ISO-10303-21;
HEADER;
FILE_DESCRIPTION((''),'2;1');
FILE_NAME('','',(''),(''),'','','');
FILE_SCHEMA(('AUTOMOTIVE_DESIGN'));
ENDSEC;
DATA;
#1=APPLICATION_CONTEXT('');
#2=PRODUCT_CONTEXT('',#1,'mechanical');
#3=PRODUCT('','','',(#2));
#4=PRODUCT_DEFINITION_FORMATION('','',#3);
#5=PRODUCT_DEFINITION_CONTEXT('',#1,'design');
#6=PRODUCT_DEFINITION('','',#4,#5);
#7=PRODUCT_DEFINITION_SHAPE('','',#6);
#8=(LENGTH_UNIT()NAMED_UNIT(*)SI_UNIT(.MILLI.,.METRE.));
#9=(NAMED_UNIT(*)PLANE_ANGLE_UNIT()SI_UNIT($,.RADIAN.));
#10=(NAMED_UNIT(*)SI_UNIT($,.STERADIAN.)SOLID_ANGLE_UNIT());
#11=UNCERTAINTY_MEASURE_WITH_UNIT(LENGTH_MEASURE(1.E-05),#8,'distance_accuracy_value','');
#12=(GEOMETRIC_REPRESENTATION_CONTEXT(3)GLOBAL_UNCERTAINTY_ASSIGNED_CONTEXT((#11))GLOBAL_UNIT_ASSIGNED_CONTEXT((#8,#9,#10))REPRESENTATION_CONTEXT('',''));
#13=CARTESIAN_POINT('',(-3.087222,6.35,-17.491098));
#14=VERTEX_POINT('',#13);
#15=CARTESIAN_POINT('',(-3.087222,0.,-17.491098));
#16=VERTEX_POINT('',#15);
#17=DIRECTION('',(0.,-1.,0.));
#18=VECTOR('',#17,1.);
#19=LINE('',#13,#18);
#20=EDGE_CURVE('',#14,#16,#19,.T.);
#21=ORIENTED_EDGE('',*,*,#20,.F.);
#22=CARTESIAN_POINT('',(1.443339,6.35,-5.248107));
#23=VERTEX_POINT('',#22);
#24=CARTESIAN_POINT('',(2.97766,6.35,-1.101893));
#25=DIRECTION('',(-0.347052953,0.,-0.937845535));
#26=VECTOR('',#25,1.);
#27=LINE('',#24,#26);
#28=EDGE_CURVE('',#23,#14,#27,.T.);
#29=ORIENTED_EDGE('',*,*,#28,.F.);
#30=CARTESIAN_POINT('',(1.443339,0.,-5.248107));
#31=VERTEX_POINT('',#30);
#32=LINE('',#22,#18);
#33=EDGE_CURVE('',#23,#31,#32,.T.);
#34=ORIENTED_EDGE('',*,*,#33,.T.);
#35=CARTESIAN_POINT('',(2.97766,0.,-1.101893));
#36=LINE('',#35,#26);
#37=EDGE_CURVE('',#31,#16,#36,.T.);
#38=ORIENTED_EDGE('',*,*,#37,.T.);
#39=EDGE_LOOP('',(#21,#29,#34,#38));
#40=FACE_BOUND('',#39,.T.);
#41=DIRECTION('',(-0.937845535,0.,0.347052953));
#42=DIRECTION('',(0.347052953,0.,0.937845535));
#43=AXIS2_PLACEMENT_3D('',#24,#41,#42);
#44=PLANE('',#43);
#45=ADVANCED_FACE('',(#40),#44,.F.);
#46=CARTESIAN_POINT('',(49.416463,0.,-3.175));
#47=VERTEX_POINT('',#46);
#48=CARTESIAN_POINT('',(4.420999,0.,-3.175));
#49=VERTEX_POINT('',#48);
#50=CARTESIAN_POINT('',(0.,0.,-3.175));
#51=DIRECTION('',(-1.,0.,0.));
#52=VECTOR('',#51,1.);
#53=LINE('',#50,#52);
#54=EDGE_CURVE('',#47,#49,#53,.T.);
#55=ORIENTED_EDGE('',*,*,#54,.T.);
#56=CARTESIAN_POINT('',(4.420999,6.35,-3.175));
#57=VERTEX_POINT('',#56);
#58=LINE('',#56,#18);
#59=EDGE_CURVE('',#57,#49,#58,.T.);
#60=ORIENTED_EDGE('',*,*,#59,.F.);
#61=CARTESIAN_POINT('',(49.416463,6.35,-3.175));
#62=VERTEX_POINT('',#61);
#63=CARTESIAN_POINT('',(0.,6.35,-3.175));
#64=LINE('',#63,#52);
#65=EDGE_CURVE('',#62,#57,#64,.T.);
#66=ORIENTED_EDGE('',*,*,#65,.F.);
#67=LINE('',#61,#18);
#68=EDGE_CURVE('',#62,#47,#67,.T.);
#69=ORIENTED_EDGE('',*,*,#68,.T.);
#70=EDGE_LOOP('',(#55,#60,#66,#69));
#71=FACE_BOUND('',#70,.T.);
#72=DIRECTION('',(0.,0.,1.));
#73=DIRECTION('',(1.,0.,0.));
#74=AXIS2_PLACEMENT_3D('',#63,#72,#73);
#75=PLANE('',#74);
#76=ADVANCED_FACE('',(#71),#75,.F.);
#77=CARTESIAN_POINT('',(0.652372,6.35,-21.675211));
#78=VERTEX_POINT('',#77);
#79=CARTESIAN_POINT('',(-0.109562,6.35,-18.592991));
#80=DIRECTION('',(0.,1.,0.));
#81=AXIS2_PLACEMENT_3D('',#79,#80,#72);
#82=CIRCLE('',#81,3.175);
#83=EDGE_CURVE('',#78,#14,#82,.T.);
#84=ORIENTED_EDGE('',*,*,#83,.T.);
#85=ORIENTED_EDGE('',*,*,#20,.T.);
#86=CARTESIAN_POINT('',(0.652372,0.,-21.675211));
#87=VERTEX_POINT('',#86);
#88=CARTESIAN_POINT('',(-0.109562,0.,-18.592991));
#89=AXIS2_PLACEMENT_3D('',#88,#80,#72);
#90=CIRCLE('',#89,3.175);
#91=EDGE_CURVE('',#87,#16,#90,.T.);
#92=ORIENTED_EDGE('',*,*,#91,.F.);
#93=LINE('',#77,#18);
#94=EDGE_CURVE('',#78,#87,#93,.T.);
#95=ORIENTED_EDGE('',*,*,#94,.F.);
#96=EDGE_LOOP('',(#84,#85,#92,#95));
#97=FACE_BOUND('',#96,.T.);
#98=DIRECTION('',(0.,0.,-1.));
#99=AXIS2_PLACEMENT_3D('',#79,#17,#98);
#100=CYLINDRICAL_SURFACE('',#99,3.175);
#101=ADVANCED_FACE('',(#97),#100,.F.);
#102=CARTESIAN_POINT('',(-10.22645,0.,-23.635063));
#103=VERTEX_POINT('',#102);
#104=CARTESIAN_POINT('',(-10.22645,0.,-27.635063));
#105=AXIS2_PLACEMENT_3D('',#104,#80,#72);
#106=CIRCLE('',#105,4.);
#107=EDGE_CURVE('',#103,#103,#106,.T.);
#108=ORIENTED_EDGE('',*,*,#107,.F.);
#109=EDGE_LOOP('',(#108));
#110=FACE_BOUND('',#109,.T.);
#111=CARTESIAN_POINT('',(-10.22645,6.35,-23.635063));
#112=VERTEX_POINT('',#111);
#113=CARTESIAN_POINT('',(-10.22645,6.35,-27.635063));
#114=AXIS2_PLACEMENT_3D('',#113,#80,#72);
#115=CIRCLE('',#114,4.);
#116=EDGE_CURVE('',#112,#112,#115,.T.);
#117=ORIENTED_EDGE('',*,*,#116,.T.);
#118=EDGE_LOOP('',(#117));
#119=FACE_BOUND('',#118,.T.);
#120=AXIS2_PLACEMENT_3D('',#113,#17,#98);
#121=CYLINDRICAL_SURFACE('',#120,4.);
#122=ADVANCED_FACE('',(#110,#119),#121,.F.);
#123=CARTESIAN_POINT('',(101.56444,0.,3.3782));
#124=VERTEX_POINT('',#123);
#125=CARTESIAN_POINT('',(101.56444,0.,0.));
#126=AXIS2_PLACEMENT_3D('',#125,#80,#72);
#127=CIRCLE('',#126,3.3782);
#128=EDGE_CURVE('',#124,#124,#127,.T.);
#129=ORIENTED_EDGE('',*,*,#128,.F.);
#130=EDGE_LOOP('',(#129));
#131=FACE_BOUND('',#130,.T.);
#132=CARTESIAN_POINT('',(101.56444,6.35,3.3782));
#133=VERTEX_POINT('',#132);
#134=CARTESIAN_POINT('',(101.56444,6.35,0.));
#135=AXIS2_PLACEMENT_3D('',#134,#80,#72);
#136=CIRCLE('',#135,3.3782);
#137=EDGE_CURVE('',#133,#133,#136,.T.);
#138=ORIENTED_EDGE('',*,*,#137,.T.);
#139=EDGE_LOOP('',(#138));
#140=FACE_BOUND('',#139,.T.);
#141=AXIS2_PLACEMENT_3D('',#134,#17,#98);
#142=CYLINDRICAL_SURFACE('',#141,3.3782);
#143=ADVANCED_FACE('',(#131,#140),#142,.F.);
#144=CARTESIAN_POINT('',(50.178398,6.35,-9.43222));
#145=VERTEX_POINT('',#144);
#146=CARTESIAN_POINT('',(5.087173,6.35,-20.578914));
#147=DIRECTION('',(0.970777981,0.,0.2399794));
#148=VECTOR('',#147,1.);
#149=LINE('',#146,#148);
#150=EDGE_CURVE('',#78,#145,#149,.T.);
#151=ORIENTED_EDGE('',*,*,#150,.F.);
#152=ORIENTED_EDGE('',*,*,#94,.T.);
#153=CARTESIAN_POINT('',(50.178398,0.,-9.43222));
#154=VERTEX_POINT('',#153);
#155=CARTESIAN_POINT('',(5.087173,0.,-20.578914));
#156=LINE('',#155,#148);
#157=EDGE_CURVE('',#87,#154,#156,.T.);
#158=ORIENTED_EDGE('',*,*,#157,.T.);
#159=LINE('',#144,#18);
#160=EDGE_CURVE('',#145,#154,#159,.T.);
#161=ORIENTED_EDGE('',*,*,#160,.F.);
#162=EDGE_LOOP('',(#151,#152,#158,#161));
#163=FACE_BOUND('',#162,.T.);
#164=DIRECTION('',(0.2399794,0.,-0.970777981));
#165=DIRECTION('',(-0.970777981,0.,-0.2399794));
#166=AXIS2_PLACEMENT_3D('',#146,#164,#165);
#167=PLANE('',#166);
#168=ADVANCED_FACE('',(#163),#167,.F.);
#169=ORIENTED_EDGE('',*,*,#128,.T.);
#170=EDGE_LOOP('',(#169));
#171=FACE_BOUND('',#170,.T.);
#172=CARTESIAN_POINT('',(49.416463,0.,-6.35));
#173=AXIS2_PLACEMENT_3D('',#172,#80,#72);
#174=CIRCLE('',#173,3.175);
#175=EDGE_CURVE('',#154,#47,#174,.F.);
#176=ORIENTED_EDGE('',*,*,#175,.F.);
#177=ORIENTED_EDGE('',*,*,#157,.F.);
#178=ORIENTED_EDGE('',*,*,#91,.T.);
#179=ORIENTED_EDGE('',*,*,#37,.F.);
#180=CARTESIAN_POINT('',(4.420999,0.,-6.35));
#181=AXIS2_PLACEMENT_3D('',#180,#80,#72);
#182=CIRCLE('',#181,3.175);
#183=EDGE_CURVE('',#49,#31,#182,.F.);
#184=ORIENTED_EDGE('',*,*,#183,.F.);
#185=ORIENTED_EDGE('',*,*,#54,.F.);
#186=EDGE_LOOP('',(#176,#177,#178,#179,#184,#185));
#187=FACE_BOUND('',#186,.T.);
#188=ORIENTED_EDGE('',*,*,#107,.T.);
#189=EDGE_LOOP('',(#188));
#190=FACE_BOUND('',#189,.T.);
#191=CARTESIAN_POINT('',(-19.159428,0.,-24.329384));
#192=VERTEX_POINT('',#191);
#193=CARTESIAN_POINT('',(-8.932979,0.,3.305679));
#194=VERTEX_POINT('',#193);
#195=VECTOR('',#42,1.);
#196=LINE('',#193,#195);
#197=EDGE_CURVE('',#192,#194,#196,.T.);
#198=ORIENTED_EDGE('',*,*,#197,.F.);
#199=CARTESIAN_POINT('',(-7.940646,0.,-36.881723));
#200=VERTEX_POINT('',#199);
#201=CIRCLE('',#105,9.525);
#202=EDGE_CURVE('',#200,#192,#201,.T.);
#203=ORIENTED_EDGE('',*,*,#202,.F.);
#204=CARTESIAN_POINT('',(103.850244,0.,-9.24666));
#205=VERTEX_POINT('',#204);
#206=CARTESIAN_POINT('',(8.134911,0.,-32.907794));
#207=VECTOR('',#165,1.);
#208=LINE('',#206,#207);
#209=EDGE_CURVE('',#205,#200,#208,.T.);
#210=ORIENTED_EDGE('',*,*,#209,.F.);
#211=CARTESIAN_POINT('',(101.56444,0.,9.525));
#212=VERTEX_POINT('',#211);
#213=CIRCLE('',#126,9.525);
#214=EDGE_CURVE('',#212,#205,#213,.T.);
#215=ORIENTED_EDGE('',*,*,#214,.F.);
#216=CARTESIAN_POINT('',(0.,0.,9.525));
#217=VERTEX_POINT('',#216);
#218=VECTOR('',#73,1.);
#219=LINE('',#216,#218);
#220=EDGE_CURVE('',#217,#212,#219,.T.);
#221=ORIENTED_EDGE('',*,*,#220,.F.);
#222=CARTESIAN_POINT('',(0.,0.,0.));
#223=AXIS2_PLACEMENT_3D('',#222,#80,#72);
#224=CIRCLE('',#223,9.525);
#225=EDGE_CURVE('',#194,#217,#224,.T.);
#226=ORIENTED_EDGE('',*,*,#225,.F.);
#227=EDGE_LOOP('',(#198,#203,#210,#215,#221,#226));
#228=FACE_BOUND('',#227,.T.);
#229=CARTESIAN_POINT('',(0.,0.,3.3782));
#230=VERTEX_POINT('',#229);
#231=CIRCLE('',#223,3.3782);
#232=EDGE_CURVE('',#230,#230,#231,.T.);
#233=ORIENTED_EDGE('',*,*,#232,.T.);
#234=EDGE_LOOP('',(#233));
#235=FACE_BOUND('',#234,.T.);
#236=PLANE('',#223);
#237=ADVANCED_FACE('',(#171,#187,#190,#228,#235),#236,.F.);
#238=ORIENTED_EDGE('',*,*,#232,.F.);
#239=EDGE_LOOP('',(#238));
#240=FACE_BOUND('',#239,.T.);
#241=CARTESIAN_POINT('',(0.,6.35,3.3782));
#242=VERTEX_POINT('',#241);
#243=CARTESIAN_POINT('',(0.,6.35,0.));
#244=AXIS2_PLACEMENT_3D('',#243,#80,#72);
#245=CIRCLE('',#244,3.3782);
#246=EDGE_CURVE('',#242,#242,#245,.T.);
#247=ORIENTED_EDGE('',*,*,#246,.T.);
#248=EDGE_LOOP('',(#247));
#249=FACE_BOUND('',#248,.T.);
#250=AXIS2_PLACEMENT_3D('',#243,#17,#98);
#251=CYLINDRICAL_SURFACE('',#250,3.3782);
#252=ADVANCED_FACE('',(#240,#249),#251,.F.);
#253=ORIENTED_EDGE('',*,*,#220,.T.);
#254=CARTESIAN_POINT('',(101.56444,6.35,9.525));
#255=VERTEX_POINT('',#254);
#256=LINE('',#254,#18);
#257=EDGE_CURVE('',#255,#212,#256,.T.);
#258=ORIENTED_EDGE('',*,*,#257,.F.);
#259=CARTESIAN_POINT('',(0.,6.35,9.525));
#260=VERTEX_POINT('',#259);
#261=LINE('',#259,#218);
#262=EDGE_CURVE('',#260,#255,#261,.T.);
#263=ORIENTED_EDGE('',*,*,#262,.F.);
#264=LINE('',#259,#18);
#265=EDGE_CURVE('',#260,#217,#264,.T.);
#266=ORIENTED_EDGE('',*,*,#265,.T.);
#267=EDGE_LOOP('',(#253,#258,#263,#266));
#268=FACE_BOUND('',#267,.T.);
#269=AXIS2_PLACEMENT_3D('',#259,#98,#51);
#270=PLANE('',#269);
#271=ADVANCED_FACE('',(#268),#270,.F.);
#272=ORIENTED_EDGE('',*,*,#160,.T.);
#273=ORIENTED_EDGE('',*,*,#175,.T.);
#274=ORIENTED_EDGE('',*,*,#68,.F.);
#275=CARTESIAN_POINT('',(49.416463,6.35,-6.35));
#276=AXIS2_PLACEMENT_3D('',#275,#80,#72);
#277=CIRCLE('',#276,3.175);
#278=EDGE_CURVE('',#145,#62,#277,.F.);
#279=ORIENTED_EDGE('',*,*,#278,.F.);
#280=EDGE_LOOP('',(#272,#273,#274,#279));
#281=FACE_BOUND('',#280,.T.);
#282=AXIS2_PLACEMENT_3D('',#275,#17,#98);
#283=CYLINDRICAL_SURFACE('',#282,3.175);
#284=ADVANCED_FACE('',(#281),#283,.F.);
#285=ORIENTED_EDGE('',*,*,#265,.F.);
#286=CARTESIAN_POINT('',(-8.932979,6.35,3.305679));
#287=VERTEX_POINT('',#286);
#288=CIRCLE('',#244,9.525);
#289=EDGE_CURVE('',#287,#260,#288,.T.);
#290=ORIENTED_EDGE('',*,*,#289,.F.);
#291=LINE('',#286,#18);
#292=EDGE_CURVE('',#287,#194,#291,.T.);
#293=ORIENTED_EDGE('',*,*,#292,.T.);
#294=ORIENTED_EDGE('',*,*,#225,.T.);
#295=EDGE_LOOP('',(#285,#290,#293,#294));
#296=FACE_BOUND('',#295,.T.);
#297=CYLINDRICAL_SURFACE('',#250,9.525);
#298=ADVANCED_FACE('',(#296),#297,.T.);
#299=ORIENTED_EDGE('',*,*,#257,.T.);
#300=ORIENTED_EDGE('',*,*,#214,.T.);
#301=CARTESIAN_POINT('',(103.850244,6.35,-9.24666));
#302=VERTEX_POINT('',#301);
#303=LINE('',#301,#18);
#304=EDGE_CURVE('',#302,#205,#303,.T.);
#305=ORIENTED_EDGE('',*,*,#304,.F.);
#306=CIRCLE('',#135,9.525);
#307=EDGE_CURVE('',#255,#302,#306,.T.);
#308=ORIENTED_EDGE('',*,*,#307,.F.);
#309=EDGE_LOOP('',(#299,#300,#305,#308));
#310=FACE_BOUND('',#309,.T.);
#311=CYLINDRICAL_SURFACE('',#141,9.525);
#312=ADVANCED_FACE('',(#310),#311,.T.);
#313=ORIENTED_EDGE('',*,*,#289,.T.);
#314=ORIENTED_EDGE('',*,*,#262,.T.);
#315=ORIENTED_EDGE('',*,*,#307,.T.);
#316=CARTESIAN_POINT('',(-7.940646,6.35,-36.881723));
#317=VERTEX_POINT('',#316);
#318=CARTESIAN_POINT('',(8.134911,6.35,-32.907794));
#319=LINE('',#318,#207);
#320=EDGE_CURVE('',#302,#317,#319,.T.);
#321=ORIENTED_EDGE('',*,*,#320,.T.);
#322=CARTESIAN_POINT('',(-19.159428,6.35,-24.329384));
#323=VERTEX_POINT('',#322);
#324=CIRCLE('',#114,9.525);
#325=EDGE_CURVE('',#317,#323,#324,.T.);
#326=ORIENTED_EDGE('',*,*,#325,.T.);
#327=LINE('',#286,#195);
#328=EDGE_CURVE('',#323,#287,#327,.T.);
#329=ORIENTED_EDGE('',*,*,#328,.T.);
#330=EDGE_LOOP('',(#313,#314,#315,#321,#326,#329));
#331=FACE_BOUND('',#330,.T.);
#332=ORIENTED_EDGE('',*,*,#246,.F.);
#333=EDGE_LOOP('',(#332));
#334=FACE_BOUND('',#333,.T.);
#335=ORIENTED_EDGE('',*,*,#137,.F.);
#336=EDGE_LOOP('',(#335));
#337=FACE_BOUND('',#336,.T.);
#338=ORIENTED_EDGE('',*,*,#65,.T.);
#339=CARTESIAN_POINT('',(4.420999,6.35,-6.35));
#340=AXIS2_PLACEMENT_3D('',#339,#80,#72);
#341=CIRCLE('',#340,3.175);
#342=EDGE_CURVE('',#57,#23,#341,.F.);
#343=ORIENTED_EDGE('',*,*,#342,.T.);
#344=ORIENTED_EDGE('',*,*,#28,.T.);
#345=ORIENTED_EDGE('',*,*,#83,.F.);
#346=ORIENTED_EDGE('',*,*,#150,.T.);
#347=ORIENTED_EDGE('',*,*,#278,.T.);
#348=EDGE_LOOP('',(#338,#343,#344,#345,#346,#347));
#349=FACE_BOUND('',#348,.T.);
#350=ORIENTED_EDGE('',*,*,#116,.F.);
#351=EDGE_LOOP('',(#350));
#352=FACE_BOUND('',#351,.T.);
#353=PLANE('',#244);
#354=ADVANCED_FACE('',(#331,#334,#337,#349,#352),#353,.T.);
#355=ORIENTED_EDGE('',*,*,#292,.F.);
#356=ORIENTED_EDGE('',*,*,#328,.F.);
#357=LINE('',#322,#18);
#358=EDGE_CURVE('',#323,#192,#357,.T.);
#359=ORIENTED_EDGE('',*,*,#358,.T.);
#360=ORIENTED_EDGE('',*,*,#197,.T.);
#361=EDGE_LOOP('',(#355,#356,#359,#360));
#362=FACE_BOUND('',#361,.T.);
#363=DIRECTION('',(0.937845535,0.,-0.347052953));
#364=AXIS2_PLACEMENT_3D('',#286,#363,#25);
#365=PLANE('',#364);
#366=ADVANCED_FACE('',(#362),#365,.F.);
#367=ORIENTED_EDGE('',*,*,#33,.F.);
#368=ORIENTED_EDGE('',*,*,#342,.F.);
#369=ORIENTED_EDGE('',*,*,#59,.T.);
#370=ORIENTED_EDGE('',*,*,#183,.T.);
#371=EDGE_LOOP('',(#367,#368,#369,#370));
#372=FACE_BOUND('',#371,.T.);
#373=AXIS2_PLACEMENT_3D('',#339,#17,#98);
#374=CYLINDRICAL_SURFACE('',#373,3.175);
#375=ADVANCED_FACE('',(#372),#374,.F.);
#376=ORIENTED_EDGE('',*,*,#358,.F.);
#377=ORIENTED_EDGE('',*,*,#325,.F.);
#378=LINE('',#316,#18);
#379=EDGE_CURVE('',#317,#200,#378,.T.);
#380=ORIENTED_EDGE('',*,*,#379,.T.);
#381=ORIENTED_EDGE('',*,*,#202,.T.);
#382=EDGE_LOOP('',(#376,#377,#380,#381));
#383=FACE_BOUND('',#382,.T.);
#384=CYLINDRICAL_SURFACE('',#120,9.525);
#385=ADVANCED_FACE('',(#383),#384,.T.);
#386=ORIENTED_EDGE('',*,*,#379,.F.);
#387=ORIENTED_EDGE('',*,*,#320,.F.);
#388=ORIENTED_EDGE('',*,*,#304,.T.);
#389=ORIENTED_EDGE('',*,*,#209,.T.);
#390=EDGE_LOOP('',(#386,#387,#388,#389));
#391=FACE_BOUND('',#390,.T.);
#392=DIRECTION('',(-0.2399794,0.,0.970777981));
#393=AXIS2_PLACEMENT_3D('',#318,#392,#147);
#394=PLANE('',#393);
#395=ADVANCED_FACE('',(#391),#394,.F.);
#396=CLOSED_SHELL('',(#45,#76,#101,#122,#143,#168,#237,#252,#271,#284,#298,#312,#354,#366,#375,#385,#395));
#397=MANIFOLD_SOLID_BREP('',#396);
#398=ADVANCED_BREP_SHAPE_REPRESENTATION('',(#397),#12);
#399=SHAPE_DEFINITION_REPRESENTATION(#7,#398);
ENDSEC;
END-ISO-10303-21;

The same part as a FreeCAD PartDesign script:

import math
import FreeCAD as App
import Part
import Sketcher

V = App.Vector
Q = App.Units.Quantity

doc = App.newDocument("Part")
body = doc.addObject("PartDesign::Body", "Body")

sketch1 = body.newObject("Sketcher::SketchObject", "Sketch")
sketch1.AttachmentSupport = (doc.getObject("XZ_Plane"), [""])
sketch1.MapMode = "FlatFace"
sketch1.addGeometry(Part.LineSegment(V(-19.159429, -24.329385, 0), V(-8.932979, 3.305679, 0)), False)
sketch1.addGeometry(Part.ArcOfCircle(Part.Circle(V(0, 0, 0), V(0, 0, 1), 9.525), math.radians(90), math.radians(159.692836)), False)
sketch1.addGeometry(Part.LineSegment(V(0, 9.525, 0), V(101.56444, 9.525, 0)), False)
sketch1.addGeometry(Part.ArcOfCircle(Part.Circle(V(101.56444, 0, 0), V(0, 0, 1), 9.525), math.radians(-76.114672), math.radians(90)), False)
sketch1.addGeometry(Part.LineSegment(V(103.850244, -9.24666, 0), V(-7.940645, -36.881723, 0)), False)
sketch1.addGeometry(Part.ArcOfCircle(Part.Circle(V(-10.22645, -27.635063, 0), V(0, 0, 1), 9.525), math.radians(159.692844), math.radians(283.885329)), False)
sketch1.addGeometry(Part.LineSegment(V(-0.138965, -9.523986, 0), V(-3.087222, -17.491098, 0)), False)
sketch1.addGeometry(Part.ArcOfCircle(Part.Circle(V(-0.109562, -18.592991, 0), V(0, 0, 1), 3.175), math.radians(159.692834), math.radians(283.885325)), False)
sketch1.addGeometry(Part.LineSegment(V(0.652372, -21.675211, 0), V(50.178398, -9.43222, 0)), False)
sketch1.addGeometry(Part.ArcOfCircle(Part.Circle(V(49.416463, -6.35, 0), V(0, 0, 1), 3.175), math.radians(-76.114675), math.radians(90)), False)
sketch1.addGeometry(Part.LineSegment(V(49.416463, -3.175, 0), V(4.420999, -3.175, 0)), False)
sketch1.addGeometry(Part.ArcOfCircle(Part.Circle(V(4.420999, -6.35, 0), V(0, 0, 1), 3.175), math.radians(90), math.radians(159.692834)), False)
sketch1.addGeometry(Part.LineSegment(V(1.443339, -5.248107, 0), V(-0.138965, -9.523986, 0)), False)
sketch1.addGeometry(Part.Circle(V(-10.22645, -27.635063, 0), V(0, 0, 1), 4), False)
sketch1.addGeometry(Part.Circle(V(0, 0, 0), V(0, 0, 1), 3.3782), False)
sketch1.addGeometry(Part.Circle(V(101.56444, 0, 0), V(0, 0, 1), 3.3782), False)
sketch1.addConstraint(Sketcher.Constraint("Tangent", 0, 2, 1, 2))
sketch1.addConstraint(Sketcher.Constraint("Tangent", 1, 1, 2, 1))
sketch1.addConstraint(Sketcher.Constraint("Tangent", 2, 2, 3, 2))
sketch1.addConstraint(Sketcher.Constraint("Tangent", 3, 1, 4, 1))
sketch1.addConstraint(Sketcher.Constraint("Tangent", 4, 2, 5, 2))
sketch1.addConstraint(Sketcher.Constraint("Tangent", 5, 1, 0, 1))
sketch1.addConstraint(Sketcher.Constraint("Tangent", 6, 2, 7, 1))
sketch1.addConstraint(Sketcher.Constraint("Tangent", 7, 2, 8, 1))
sketch1.addConstraint(Sketcher.Constraint("Tangent", 8, 2, 9, 1))
sketch1.addConstraint(Sketcher.Constraint("Tangent", 9, 2, 10, 1))
sketch1.addConstraint(Sketcher.Constraint("Tangent", 10, 2, 11, 1))
sketch1.addConstraint(Sketcher.Constraint("Tangent", 11, 2, 12, 1))
sketch1.addConstraint(Sketcher.Constraint("Coincident", 12, 2, 6, 1))
sketch1.addConstraint(Sketcher.Constraint("Horizontal", 2))
sketch1.addConstraint(Sketcher.Constraint("Horizontal", 10))
sketch1.addConstraint(Sketcher.Constraint("Coincident", 1, 3, -1, 1))
sketch1.addConstraint(Sketcher.Constraint("Coincident", 14, 3, -1, 1))
sketch1.addConstraint(Sketcher.Constraint("Coincident", 13, 3, 5, 3))
sketch1.addConstraint(Sketcher.Constraint("Coincident", 15, 3, 3, 3))
sketch1.addConstraint(Sketcher.Constraint("Equal", 1, 3))
sketch1.addConstraint(Sketcher.Constraint("Equal", 3, 5))
sketch1.addConstraint(Sketcher.Constraint("Equal", 7, 9))
sketch1.addConstraint(Sketcher.Constraint("Equal", 9, 11))
sketch1.addConstraint(Sketcher.Constraint("Equal", 14, 15))
sketch1.addConstraint(Sketcher.Constraint("Parallel", 0, 6))
sketch1.addConstraint(Sketcher.Constraint("Parallel", 4, 8))
sketch1.addConstraint(Sketcher.Constraint("Parallel", 6, 12))
sketch1.addConstraint(Sketcher.Constraint("Diameter", 14, Q("0.266 in")))
sketch1.addConstraint(Sketcher.Constraint("Radius", 1, Q("0.375 in")))
sketch1.addConstraint(Sketcher.Constraint("Radius", 7, Q("0.125 in")))
sketch1.addConstraint(Sketcher.Constraint("DistanceY", 10, 2, 1, 1, Q("0.5 in")))
sketch1.addConstraint(Sketcher.Constraint("Diameter", 13, Q("8 mm")))
sketch1.addConstraint(Sketcher.Constraint("DistanceX", 2, 1, 2, 2, Q("3.9986 in")))
sketch1.addConstraint(Sketcher.Constraint("Distance", 0, Q("1.1601001 in")))
sketch1.addConstraint(Sketcher.Constraint("Distance", 4, Q("4.5337 in")))
sketch1.addConstraint(Sketcher.Constraint("DistanceX", 5, 3, 7, 2, Q("0.4283001 in")))
sketch1.addConstraint(Sketcher.Constraint("DistanceX", -1, 1, 11, 3, Q("4.420999 mm")))
sketch1.addConstraint(Sketcher.Constraint("Distance", 6, Q("8.495121 mm")))
pad1 = body.newObject("PartDesign::Pad", "Pad")
pad1.Profile = sketch1
pad1.Length = Q("0.25 in")
pad1.Reversed = True

doc.recompute()
